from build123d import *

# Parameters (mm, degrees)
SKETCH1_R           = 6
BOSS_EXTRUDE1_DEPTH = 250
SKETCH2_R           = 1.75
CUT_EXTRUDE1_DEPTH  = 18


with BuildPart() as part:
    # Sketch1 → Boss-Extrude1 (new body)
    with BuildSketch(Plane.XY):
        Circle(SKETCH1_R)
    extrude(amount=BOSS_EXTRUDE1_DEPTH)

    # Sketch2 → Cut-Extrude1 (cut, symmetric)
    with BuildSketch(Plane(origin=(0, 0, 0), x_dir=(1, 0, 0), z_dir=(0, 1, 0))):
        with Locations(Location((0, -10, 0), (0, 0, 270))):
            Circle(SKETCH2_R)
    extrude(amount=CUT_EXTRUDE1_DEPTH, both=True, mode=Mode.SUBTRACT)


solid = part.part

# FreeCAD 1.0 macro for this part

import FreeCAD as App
import Part
import Sketcher

V = App.Vector

doc = App.newDocument("Part")
body = doc.addObject("PartDesign::Body", "Body")

sketch1 = body.newObject("Sketcher::SketchObject", "Sketch")
sketch1.AttachmentSupport = (doc.getObject("XY_Plane"), [""])
sketch1.MapMode = "FlatFace"
sketch1.addGeometry(Part.Circle(V(0, 0, 0), V(0, 0, 1), 6), False)
sketch1.addConstraint(Sketcher.Constraint("Coincident", 0, 3, -1, 1))
sketch1.addConstraint(Sketcher.Constraint("Diameter", 0, 12.0))
pad1 = body.newObject("PartDesign::Pad", "Pad")
pad1.Profile = sketch1
pad1.Length = 250

sketch2 = body.newObject("Sketcher::SketchObject", "Sketch001")
sketch2.AttachmentSupport = (doc.getObject("XZ_Plane"), [""])
sketch2.MapMode = "FlatFace"
sketch2.addGeometry(Part.Circle(V(0, 10, 0), V(0, 0, 1), 1.8), False)
sketch2.addConstraint(Sketcher.Constraint("PointOnObject", 0, 3, -2))
sketch2.addConstraint(Sketcher.Constraint("Diameter", 0, 3.5))
sketch2.addConstraint(Sketcher.Constraint("DistanceY", -1, 1, 0, 3, 10.0))
pocket1 = body.newObject("PartDesign::Pocket", "Pocket")
pocket1.Profile = sketch2
pocket1.Length = 36
pocket1.Midplane = True

doc.recompute()
